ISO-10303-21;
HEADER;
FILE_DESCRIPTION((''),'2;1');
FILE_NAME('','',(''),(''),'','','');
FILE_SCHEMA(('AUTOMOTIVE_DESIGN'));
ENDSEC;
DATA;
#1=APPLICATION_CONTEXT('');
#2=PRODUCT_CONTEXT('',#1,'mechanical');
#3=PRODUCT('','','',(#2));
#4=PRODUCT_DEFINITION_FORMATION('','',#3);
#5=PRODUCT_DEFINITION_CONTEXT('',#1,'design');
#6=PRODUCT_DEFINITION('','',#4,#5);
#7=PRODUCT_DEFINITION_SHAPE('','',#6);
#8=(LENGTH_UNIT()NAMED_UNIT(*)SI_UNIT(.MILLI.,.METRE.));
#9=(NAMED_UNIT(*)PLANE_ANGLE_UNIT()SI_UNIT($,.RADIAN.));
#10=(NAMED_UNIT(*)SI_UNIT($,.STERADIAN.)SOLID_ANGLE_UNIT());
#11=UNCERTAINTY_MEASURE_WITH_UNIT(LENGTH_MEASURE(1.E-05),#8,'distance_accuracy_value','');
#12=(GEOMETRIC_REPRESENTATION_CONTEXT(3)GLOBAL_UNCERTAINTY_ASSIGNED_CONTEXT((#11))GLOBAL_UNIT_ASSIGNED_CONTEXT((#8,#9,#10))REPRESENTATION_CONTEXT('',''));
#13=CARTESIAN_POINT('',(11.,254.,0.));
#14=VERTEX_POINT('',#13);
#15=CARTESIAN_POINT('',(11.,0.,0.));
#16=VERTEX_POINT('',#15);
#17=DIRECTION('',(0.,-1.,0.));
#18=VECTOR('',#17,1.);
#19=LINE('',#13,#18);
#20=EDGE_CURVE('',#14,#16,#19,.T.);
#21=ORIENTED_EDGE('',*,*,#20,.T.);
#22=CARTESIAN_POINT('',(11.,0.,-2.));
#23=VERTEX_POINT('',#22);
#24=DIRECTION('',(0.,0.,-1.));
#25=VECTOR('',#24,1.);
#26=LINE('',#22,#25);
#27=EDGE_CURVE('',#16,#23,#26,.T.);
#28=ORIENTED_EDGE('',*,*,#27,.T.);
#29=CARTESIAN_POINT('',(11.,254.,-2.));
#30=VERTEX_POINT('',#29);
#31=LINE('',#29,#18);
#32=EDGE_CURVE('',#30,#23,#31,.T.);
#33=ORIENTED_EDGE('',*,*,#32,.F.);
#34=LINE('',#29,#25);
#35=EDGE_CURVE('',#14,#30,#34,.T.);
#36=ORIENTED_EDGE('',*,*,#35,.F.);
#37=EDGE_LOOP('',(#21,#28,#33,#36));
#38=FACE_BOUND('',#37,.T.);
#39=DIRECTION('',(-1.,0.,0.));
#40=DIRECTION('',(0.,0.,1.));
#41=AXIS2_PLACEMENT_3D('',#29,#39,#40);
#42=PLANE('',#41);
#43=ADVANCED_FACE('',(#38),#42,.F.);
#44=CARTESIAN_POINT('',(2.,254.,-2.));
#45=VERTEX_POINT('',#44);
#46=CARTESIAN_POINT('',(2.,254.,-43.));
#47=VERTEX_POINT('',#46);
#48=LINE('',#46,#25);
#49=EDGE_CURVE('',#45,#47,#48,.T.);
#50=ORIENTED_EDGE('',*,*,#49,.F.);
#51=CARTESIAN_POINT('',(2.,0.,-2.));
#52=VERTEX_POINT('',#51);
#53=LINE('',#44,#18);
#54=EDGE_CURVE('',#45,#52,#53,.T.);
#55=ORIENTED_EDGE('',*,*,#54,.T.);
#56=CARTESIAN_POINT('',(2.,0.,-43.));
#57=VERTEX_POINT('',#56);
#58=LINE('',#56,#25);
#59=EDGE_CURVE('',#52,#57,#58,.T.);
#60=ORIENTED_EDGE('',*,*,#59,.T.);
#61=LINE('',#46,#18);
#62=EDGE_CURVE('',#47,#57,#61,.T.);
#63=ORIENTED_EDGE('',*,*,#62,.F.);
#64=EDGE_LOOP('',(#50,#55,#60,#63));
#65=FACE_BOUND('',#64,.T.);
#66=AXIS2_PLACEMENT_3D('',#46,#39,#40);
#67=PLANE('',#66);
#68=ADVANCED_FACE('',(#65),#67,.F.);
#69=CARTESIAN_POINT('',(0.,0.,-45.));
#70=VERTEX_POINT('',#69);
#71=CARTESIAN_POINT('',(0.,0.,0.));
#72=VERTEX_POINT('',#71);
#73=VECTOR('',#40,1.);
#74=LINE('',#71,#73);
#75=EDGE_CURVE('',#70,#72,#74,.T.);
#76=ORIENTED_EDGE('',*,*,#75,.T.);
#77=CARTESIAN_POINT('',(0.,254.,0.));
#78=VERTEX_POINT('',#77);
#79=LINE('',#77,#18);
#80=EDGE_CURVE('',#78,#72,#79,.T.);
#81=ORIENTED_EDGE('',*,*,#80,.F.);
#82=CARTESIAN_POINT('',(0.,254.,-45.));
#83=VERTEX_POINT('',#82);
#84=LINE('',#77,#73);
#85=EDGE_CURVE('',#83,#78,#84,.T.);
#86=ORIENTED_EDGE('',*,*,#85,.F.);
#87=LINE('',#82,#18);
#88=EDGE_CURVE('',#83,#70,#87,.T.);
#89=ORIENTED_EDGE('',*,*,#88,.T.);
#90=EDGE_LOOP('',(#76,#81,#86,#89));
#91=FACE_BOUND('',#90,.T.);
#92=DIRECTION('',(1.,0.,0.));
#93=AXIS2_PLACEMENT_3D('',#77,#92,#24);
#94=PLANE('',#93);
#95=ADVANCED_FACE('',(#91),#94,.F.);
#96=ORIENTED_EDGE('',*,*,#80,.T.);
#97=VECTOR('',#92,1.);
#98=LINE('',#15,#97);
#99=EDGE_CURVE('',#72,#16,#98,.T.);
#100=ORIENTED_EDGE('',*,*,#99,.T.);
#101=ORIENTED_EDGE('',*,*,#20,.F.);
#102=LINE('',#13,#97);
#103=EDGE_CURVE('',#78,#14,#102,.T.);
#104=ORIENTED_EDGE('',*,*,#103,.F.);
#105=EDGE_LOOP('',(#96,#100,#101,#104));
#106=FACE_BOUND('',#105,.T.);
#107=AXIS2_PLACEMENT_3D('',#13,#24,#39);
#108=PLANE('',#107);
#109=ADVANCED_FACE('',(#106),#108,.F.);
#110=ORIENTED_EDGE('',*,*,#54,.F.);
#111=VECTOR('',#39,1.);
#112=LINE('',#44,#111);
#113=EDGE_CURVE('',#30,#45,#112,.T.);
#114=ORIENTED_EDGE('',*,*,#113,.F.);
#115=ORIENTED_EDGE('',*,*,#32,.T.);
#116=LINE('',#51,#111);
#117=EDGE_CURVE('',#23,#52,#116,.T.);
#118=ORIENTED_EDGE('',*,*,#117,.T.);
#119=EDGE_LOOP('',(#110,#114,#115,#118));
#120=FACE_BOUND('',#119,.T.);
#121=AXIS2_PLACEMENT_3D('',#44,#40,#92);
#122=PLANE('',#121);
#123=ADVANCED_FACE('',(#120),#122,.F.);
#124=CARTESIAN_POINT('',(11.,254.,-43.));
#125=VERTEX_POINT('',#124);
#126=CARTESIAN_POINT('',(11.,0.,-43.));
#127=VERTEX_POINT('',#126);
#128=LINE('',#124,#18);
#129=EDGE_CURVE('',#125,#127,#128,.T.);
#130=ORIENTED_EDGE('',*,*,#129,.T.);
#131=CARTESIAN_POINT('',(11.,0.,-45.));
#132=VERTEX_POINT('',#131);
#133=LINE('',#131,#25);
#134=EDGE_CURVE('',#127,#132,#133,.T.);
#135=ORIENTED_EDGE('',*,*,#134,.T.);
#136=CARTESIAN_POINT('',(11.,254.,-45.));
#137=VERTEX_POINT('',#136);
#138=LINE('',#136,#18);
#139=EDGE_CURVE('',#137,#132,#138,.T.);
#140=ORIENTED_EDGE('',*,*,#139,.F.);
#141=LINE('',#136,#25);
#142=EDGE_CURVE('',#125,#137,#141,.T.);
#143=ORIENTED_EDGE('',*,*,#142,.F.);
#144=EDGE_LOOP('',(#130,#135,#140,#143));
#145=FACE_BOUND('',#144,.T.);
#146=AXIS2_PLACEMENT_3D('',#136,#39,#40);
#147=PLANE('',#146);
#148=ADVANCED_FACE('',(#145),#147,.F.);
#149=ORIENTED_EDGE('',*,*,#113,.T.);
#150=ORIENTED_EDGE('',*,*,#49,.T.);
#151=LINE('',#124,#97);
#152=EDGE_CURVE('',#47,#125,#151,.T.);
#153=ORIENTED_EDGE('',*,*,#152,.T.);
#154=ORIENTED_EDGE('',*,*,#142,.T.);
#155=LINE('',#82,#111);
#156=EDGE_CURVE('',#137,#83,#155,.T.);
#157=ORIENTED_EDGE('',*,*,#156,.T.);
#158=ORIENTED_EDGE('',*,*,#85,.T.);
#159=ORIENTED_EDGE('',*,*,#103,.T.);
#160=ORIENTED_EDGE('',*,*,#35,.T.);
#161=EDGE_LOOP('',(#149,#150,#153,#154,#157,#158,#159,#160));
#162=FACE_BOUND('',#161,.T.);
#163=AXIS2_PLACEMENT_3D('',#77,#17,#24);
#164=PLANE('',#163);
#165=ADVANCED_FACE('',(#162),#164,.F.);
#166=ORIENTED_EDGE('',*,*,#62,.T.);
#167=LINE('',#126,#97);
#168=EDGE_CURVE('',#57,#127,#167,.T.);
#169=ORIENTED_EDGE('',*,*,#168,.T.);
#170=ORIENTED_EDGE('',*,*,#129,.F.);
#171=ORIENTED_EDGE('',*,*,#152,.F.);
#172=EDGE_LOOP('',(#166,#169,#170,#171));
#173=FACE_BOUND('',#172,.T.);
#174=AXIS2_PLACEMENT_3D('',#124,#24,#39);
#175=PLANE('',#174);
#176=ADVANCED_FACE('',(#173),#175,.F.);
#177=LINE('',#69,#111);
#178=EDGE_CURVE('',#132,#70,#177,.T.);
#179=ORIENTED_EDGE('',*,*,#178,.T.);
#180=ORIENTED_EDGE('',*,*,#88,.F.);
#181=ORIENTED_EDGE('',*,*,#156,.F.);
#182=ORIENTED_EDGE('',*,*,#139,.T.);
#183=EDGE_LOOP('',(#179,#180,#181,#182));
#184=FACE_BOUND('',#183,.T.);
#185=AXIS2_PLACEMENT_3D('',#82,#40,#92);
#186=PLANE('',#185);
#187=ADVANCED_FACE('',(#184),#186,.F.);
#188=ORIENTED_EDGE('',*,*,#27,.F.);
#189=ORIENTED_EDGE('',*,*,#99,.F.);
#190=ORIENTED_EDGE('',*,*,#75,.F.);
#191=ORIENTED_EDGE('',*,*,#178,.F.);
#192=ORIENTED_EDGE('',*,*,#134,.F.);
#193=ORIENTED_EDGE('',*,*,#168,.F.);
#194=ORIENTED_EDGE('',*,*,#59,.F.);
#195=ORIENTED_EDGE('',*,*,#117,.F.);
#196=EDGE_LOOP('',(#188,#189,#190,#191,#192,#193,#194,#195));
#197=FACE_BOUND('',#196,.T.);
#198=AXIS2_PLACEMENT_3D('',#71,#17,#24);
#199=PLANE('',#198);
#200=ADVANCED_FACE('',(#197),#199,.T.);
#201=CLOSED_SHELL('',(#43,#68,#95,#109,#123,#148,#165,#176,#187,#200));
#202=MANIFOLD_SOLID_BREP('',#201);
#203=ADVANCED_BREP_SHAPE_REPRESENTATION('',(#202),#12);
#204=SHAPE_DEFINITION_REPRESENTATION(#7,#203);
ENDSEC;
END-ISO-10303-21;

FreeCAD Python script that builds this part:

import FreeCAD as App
import Part
import Sketcher


def add_polygon(sketch, points):
    """Adds a closed chain of lines whose ends are joined by coincident constraints."""
    first, n = sketch.GeometryCount, len(points)
    for a, b in zip(points, points[1:] + points[:1]):
        sketch.addGeometry(Part.LineSegment(App.Vector(*a, 0), App.Vector(*b, 0)), False)
    for i in range(n):
        sketch.addConstraint(Sketcher.Constraint("Coincident", first + i, 2, first + (i + 1) % n, 1))

doc = App.newDocument("Part")
params = doc.addObject("Spreadsheet::Sheet", "Params")
for row, (alias, value) in enumerate([
    ("sketch1_width", "11 mm"),
    ("sketch1_width2", "9 mm"),
    ("sketch1_height", "45 mm"),
    ("sketch1_height2", "2 mm"),
    ("pad1_length", "254 mm"),
], start=1):
    params.set(f"A{row}", alias)
    params.set(f"B{row}", "=" + value)
    params.setAlias(f"B{row}", alias)

body = doc.addObject("PartDesign::Body", "Body")

sketch1 = body.newObject("Sketcher::SketchObject", "Sketch")
sketch1.AttachmentSupport = (doc.getObject("XZ_Plane"), [""])
sketch1.MapMode = "FlatFace"
add_polygon(sketch1, [(0, -45), (0, 0), (11, 0), (11, -2), (2, -2), (2, -43), (11, -43), (11, -45)])
sketch1.addConstraint(Sketcher.Constraint("Vertical", 0))
sketch1.addConstraint(Sketcher.Constraint("Horizontal", 1))
sketch1.addConstraint(Sketcher.Constraint("Vertical", 2))
sketch1.addConstraint(Sketcher.Constraint("Horizontal", 3))
sketch1.addConstraint(Sketcher.Constraint("Vertical", 4))
sketch1.addConstraint(Sketcher.Constraint("Horizontal", 5))
sketch1.addConstraint(Sketcher.Constraint("Vertical", 6))
sketch1.addConstraint(Sketcher.Constraint("Horizontal", 7))
sketch1.addConstraint(Sketcher.Constraint("Coincident", 0, 2, -1, 1))
sketch1.addConstraint(Sketcher.Constraint("Vertical", 2, 2, 5, 2))
sketch1.addConstraint(Sketcher.Constraint("Equal", 2, 6))
sketch1.addConstraint(Sketcher.Constraint("DistanceX", 1, 1, 1, 2, 11.0))
sketch1.addConstraint(Sketcher.Constraint("DistanceX", 3, 2, 3, 1, 9.0))
sketch1.addConstraint(Sketcher.Constraint("DistanceY", 0, 1, 0, 2, 45.0))
sketch1.addConstraint(Sketcher.Constraint("DistanceY", 2, 2, 2, 1, 2.0))
sketch1.setExpression("Constraints[19]", "Params.sketch1_width")
sketch1.setExpression("Constraints[20]", "Params.sketch1_width2")
sketch1.setExpression("Constraints[21]", "Params.sketch1_height")
sketch1.setExpression("Constraints[22]", "Params.sketch1_height2")
pad1 = body.newObject("PartDesign::Pad", "Pad")
pad1.Profile = sketch1
pad1.setExpression("Length", "Params.pad1_length")
pad1.Reversed = True

doc.recompute()
